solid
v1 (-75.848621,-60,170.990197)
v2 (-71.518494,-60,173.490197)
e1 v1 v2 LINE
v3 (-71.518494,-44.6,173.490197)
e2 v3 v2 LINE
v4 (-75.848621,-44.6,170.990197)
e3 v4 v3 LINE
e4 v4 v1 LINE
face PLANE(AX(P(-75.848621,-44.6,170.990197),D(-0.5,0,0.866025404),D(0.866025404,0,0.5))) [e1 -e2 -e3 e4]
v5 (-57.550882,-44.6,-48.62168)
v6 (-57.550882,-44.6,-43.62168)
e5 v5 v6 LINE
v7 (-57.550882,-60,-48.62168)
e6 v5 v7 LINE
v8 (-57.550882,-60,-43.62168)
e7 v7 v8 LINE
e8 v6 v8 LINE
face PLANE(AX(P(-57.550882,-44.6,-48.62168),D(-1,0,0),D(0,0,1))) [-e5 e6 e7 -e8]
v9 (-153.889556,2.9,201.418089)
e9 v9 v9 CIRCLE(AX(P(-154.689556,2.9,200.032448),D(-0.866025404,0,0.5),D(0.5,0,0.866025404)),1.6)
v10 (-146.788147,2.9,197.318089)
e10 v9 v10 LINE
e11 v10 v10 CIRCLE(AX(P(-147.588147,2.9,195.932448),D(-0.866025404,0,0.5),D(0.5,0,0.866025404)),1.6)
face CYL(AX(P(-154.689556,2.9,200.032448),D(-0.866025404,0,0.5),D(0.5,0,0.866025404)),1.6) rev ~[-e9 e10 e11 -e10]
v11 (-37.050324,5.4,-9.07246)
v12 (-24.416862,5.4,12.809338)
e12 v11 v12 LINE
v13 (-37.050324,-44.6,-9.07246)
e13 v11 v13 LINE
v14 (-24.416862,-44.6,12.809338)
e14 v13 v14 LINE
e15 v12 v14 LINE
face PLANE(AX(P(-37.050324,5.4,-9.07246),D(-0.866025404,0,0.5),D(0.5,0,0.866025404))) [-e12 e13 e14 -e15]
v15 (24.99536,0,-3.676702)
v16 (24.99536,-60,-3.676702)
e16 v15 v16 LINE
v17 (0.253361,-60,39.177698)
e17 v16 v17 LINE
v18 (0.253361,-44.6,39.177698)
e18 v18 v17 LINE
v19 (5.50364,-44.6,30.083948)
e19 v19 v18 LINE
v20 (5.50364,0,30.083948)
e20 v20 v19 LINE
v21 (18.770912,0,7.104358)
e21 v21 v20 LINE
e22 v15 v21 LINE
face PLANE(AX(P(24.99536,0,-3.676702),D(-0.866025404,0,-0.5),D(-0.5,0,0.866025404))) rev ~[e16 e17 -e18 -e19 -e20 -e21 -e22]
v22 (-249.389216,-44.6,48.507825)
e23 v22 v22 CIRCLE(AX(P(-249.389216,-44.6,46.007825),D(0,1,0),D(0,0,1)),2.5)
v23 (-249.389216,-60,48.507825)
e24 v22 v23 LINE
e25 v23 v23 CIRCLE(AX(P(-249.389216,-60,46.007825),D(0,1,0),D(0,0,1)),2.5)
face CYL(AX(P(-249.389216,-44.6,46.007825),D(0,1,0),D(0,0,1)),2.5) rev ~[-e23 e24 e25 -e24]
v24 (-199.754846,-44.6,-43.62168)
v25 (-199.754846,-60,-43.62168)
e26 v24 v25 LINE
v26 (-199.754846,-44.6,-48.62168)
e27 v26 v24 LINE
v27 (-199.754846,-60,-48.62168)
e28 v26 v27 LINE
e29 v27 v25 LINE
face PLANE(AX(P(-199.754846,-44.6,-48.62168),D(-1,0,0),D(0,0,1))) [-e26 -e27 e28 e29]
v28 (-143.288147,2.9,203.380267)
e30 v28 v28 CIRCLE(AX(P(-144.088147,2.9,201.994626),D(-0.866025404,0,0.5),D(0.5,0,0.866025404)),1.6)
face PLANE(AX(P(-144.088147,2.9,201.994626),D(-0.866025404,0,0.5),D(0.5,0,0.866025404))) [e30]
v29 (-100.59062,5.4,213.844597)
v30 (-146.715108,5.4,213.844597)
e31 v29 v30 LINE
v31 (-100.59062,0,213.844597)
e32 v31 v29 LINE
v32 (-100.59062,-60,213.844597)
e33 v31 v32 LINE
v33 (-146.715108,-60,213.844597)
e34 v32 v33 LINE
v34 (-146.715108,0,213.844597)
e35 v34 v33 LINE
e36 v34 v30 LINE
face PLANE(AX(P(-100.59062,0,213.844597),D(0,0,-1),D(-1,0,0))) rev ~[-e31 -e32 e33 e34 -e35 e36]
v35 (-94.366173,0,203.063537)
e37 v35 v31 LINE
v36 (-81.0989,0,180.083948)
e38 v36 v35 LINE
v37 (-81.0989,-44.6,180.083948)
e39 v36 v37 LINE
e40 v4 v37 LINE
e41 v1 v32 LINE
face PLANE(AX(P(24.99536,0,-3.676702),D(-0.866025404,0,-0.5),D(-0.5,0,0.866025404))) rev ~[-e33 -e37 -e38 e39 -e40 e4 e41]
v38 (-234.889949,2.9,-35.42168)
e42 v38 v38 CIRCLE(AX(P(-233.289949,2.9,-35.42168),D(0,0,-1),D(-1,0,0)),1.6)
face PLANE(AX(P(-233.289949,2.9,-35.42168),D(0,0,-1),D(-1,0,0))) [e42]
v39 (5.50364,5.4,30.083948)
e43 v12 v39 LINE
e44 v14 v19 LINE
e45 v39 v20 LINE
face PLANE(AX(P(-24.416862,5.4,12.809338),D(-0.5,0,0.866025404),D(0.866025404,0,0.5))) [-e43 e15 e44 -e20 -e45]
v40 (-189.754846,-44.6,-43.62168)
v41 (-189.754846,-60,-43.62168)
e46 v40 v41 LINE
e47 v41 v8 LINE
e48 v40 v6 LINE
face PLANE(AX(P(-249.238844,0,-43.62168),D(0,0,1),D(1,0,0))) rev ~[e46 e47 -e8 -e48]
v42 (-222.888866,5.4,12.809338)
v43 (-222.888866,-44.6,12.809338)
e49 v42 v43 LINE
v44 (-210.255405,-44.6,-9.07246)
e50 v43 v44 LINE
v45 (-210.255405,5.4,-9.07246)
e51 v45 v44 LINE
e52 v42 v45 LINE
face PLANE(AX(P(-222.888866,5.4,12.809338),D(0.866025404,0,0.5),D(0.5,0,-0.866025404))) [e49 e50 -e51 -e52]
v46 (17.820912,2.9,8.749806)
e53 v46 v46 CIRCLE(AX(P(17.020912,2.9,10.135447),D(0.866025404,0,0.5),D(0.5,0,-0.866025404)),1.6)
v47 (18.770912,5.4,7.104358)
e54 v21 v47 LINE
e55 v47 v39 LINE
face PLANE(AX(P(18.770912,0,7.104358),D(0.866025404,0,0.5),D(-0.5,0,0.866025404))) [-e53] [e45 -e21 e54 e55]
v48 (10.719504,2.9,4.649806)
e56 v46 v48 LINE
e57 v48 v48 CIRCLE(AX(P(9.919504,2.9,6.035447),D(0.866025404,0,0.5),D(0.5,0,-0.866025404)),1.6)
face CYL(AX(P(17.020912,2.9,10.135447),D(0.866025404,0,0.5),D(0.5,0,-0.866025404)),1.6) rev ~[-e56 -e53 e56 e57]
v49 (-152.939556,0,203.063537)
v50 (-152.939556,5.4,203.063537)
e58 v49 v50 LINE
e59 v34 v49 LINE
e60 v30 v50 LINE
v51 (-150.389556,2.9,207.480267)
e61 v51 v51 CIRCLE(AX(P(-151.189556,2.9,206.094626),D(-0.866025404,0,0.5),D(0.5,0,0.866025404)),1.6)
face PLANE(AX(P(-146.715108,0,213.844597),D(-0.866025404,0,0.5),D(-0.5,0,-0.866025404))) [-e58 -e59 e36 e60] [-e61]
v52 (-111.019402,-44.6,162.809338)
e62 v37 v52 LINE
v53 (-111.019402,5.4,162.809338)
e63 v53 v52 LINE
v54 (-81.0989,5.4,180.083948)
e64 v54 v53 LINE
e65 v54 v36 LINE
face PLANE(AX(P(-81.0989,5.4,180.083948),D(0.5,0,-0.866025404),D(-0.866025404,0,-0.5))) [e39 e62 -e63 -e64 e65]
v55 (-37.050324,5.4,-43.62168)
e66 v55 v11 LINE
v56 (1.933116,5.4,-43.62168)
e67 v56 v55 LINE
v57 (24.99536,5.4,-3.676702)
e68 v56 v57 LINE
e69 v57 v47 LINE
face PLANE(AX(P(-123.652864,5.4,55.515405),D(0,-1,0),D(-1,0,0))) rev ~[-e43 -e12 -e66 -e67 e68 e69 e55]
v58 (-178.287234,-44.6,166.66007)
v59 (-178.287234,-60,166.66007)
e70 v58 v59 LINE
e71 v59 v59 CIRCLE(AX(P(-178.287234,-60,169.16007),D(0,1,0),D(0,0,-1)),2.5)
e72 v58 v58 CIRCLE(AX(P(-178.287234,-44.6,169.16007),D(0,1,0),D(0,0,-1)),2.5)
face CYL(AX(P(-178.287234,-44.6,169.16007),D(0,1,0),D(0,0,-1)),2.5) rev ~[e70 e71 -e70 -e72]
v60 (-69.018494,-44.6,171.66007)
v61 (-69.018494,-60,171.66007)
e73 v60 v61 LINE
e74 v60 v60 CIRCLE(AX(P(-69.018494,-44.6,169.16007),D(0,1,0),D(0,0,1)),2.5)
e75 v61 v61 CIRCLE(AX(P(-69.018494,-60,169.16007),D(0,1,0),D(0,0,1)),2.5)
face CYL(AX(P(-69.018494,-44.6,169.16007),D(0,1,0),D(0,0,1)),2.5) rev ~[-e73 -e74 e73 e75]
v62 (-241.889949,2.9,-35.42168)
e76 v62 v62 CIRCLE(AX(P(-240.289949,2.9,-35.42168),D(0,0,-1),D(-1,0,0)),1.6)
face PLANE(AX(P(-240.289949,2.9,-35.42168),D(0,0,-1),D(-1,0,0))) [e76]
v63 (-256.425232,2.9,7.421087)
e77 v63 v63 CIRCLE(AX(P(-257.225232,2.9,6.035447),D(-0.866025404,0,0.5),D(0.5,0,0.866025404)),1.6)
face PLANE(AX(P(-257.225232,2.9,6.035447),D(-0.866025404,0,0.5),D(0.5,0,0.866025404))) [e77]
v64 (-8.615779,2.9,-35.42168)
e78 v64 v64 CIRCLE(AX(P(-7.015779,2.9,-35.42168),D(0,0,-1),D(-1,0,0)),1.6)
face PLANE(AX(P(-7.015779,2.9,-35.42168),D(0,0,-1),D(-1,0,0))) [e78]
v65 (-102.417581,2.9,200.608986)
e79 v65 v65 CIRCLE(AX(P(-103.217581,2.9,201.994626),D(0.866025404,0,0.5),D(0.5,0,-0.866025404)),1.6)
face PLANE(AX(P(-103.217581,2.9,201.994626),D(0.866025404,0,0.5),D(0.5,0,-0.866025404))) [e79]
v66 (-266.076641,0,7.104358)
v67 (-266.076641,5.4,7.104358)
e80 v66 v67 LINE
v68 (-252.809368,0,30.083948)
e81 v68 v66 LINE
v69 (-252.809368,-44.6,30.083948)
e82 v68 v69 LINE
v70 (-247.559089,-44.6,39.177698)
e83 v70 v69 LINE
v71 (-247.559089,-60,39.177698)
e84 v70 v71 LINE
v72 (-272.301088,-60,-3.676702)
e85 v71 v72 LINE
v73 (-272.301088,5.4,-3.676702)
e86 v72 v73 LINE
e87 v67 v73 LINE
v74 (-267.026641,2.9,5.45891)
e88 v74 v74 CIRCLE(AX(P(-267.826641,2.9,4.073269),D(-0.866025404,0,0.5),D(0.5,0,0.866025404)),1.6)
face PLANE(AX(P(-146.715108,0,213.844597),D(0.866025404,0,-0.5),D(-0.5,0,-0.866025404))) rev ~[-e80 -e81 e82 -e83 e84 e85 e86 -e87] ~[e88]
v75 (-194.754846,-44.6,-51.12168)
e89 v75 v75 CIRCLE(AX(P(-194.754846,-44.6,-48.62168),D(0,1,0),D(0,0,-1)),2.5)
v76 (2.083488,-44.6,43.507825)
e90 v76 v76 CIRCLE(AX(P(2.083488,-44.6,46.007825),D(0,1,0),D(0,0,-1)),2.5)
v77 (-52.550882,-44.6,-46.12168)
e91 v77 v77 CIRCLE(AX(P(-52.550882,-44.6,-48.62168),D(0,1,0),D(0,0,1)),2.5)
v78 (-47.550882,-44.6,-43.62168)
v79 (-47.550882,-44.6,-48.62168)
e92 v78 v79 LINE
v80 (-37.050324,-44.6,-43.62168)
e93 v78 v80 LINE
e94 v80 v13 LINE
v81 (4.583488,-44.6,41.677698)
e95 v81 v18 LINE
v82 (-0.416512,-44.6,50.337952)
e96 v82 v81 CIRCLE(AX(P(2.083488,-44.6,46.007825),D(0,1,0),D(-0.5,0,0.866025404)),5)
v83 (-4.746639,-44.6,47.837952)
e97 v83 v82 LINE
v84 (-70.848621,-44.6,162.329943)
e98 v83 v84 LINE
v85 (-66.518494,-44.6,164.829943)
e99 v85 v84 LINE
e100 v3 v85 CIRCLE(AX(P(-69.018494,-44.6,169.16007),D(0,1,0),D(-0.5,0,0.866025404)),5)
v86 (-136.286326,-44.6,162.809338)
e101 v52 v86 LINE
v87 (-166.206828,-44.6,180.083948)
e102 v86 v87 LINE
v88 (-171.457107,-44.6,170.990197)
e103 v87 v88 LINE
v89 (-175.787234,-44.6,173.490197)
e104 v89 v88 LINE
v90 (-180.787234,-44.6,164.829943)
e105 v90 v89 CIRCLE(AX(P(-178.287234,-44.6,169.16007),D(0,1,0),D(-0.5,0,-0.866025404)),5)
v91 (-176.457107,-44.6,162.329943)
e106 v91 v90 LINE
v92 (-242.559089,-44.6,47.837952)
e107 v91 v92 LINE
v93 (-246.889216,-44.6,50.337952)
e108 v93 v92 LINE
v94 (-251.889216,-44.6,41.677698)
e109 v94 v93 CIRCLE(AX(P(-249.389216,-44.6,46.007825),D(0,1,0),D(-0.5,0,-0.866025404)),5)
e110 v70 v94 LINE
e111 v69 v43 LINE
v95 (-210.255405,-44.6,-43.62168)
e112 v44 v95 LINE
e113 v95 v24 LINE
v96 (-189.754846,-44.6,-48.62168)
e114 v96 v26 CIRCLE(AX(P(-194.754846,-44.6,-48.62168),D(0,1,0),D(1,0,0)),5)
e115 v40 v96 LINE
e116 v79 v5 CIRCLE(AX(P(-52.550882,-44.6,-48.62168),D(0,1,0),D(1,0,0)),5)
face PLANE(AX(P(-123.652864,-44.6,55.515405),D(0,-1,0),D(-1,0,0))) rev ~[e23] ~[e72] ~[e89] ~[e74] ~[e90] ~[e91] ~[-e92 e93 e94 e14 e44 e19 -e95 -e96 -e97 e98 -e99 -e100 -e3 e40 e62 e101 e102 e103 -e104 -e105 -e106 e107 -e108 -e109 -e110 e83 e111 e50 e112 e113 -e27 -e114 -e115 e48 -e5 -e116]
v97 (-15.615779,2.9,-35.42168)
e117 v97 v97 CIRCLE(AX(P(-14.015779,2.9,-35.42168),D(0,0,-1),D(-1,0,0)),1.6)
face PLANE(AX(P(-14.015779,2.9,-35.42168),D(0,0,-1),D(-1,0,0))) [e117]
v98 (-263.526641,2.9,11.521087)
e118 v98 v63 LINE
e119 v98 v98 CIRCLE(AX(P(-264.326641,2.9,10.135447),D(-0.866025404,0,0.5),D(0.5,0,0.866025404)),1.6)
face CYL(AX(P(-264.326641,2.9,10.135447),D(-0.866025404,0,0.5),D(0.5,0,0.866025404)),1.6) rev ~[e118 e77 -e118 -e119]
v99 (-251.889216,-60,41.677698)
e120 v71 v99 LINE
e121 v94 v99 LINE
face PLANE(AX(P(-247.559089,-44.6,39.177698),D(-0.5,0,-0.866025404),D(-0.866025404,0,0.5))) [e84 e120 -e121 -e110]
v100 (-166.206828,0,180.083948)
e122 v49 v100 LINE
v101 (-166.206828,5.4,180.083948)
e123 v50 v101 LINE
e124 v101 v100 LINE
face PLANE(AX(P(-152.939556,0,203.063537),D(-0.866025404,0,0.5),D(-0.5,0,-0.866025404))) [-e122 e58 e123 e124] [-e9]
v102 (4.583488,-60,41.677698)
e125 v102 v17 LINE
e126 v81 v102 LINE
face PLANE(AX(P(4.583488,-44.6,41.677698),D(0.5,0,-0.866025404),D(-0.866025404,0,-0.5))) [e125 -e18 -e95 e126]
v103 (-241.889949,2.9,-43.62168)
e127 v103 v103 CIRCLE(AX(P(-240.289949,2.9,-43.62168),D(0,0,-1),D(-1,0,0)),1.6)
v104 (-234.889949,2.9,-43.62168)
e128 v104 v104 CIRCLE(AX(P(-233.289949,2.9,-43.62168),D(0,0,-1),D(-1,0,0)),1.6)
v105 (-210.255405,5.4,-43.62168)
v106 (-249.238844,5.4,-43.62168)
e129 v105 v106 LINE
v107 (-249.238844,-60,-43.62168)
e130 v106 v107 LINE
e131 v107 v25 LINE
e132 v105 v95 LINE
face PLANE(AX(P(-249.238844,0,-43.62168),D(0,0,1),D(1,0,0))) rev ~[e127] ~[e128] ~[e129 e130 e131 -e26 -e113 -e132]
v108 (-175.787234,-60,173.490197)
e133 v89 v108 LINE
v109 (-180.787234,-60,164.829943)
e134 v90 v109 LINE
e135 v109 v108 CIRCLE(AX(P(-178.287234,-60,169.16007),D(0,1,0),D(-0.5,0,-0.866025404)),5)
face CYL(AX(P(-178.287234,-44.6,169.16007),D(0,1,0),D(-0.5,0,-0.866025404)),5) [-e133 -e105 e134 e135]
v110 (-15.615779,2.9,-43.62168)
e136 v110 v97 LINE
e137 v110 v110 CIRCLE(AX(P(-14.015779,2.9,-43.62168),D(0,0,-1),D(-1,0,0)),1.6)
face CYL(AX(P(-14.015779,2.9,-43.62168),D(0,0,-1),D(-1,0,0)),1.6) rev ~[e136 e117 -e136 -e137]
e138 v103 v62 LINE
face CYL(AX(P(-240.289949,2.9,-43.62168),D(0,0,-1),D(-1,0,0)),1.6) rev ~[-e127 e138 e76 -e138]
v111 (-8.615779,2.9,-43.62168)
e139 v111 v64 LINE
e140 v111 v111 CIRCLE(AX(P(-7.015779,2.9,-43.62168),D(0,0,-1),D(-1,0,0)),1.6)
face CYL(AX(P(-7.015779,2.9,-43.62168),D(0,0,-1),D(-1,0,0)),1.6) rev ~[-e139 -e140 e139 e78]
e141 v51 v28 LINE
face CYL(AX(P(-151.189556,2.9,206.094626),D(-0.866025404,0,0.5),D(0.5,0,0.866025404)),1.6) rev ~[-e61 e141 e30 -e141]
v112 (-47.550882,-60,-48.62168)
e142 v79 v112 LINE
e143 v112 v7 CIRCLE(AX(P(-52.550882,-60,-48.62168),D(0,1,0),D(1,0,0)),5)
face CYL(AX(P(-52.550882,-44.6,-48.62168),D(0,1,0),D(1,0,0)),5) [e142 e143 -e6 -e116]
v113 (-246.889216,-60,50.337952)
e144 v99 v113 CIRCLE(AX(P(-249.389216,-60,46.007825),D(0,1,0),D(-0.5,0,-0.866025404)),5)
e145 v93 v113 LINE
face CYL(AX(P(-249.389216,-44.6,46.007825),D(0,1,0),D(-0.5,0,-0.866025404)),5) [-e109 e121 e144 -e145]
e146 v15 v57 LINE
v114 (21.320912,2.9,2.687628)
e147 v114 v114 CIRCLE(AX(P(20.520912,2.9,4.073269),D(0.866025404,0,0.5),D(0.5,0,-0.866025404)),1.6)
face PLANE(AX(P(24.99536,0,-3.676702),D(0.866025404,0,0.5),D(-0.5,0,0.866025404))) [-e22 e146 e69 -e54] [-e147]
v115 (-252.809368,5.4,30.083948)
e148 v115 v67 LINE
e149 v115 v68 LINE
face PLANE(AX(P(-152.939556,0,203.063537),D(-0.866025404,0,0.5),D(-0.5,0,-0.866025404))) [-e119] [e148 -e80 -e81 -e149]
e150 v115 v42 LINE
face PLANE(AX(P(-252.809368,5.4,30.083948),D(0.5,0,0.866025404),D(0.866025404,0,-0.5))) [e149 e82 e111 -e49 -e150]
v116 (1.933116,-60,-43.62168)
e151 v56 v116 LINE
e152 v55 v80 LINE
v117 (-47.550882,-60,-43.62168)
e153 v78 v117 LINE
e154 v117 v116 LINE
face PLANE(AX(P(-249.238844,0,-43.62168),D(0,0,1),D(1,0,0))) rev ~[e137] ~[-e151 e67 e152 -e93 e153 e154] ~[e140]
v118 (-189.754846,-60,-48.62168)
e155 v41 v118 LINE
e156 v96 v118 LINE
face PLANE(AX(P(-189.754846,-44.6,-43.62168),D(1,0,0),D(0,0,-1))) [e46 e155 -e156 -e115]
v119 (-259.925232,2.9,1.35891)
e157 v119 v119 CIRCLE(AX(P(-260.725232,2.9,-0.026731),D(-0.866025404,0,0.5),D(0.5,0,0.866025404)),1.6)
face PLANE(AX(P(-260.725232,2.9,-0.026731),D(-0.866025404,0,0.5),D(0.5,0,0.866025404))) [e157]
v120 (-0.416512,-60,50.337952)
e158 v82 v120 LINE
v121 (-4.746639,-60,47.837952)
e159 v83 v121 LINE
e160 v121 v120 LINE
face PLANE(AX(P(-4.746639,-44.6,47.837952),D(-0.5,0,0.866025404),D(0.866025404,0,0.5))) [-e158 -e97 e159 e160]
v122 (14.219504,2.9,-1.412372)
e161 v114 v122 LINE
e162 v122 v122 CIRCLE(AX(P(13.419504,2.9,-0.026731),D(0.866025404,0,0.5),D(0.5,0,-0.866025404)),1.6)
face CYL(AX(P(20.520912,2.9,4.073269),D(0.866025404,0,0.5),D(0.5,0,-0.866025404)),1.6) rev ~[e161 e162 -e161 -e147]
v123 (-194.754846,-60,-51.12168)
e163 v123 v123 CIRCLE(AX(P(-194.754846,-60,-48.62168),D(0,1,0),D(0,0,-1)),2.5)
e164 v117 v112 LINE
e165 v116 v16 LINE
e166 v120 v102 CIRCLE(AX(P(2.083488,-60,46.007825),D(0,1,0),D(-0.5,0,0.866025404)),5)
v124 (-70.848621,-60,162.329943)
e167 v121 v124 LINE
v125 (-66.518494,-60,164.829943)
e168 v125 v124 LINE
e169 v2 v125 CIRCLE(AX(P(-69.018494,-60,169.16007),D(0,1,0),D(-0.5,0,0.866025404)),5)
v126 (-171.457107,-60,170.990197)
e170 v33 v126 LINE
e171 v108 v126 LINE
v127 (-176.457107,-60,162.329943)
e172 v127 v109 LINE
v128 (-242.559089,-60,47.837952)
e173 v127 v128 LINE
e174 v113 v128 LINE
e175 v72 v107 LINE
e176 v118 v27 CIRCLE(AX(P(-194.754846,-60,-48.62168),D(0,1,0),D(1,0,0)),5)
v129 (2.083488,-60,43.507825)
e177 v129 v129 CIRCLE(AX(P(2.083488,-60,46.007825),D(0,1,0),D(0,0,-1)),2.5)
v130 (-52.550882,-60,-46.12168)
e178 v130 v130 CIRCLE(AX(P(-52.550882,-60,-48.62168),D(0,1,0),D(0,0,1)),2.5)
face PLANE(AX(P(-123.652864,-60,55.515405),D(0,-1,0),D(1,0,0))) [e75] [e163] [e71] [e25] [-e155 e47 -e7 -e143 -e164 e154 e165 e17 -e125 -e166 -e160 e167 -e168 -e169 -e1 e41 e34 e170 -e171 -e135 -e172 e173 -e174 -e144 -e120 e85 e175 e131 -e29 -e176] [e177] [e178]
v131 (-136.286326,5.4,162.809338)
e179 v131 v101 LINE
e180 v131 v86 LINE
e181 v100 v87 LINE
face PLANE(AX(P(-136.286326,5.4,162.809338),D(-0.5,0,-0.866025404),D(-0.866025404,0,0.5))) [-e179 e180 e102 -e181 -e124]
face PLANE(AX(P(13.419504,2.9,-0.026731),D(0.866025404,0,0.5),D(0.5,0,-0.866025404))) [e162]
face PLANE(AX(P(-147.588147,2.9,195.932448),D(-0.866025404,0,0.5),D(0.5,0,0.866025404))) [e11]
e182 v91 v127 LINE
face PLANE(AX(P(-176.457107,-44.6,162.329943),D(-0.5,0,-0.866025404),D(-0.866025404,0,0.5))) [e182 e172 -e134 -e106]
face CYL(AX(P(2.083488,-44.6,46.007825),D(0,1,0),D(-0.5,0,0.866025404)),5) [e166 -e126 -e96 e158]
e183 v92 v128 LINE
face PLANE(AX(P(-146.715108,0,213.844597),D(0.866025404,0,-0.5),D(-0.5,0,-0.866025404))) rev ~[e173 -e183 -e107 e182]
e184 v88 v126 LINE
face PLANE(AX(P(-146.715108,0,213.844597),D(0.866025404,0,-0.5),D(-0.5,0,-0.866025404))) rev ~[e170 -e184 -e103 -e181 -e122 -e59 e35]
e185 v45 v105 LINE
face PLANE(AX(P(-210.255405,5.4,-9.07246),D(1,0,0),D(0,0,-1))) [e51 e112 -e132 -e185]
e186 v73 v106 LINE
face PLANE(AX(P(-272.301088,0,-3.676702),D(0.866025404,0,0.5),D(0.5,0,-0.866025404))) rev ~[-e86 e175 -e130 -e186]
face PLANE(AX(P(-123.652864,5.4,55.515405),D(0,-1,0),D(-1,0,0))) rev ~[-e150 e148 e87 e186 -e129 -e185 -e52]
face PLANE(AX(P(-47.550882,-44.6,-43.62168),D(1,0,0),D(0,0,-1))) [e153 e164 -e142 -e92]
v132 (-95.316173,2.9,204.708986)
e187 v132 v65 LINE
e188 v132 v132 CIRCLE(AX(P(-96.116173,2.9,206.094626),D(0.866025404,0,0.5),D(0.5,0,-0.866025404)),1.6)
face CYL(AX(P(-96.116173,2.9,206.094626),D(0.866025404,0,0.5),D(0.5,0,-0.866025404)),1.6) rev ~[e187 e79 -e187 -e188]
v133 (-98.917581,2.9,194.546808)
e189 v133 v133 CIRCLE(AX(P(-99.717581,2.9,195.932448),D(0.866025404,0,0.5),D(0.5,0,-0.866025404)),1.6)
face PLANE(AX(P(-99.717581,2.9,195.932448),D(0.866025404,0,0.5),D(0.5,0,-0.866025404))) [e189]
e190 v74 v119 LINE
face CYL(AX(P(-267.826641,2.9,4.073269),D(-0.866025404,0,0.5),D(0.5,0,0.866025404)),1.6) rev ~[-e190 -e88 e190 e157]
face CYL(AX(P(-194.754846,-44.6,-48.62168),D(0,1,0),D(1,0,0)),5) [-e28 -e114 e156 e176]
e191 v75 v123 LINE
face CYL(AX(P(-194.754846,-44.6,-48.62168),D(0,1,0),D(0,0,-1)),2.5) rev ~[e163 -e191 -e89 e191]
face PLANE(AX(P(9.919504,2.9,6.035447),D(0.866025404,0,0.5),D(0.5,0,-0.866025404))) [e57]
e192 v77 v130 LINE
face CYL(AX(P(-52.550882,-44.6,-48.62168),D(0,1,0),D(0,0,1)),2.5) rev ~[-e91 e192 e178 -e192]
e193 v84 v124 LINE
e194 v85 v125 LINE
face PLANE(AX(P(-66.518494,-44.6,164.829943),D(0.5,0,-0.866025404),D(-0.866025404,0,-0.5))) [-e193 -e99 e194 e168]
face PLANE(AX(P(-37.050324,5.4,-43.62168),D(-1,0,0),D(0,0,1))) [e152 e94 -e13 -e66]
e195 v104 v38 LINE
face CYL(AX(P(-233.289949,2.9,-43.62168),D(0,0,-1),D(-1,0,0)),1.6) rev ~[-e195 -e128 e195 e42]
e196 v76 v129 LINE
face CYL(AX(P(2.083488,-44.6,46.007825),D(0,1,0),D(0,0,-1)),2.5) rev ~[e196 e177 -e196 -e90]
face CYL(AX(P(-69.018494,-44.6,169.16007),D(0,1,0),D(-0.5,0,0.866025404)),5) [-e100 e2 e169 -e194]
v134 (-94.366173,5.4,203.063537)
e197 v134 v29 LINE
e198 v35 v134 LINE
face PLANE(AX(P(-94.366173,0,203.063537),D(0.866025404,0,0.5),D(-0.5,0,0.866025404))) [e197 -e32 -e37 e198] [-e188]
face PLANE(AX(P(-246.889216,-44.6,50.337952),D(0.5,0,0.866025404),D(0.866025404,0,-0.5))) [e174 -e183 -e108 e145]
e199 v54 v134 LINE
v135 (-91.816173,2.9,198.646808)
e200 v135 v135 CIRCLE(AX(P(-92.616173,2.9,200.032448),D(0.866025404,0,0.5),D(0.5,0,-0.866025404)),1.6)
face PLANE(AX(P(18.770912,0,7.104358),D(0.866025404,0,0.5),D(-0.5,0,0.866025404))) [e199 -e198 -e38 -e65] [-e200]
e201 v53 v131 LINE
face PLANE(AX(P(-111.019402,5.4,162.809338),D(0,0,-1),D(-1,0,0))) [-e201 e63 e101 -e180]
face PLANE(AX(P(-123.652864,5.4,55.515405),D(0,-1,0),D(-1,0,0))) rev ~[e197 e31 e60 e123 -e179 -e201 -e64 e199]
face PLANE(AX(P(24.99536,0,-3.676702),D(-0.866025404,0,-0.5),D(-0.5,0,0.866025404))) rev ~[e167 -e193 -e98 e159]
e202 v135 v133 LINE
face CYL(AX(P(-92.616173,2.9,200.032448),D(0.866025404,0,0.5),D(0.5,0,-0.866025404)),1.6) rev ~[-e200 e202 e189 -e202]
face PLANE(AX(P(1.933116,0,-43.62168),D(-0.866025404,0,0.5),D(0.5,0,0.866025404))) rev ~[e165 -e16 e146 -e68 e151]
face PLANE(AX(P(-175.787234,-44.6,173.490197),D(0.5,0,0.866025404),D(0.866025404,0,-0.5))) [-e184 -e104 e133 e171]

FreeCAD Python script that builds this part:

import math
import FreeCAD as App
import Part
import Sketcher

V = App.Vector
Q = App.Units.Quantity


def add_polygon(sketch, points):
    """Adds a closed chain of lines whose ends are joined by coincident constraints."""
    first, n = sketch.GeometryCount, len(points)
    for a, b in zip(points, points[1:] + points[:1]):
        sketch.addGeometry(Part.LineSegment(App.Vector(*a, 0), App.Vector(*b, 0)), False)
    for i in range(n):
        sketch.addConstraint(Sketcher.Constraint("Coincident", first + i, 2, first + (i + 1) % n, 1))

doc = App.newDocument("Part")
body = doc.addObject("PartDesign::Body", "Body")

sketch1 = doc.addObject("Sketcher::SketchObject", "Sketch")
body.addObject(sketch1)
sketch1.AttachmentSupport = (doc.XZ_Plane, [""])
sketch1.MapMode = "FlatFace"
add_polygon(sketch1, [(-272, -4), (-266, 7), (-153, 203), (-147, 214), (-101, 214), (-94, 203), (19, 7), (25, -4), (2, -44), (-249, -44)])
sketch1.addConstraint(Sketcher.Constraint("Horizontal", 3))
sketch1.addConstraint(Sketcher.Constraint("Horizontal", 8))
sketch1.addConstraint(Sketcher.Constraint("Parallel", 0, 1))
sketch1.addConstraint(Sketcher.Constraint("Parallel", 1, 2))
sketch1.addConstraint(Sketcher.Constraint("Parallel", 4, 5))
sketch1.addConstraint(Sketcher.Constraint("Parallel", 5, 6))
sketch1.addConstraint(Sketcher.Constraint("Parallel", 2, 7))
sketch1.addConstraint(Sketcher.Constraint("Parallel", 6, 9))
sketch1.addConstraint(Sketcher.Constraint("Horizontal", 1, 2, 4, 2))
sketch1.addConstraint(Sketcher.Constraint("Horizontal", 0, 2, 5, 2))
sketch1.addConstraint(Sketcher.Constraint("Horizontal", 6, 2, 9, 2))
sketch1.addConstraint(Sketcher.Constraint("Equal", 0, 2))
sketch1.addConstraint(Sketcher.Constraint("Equal", 2, 4))
sketch1.addConstraint(Sketcher.Constraint("Angle", 0, Q("60 deg")))
sketch1.addConstraint(Sketcher.Constraint("DistanceX", 3, 1, 3, 2, Q("46.124488 mm")))
sketch1.addConstraint(Sketcher.Constraint("DistanceX", 8, 2, 8, 1, Q("251.17196 mm")))
sketch1.addConstraint(Sketcher.Constraint("DistanceY", 6, 2, -1, 1, Q("3.676702 mm")))
sketch1.addConstraint(Sketcher.Constraint("DistanceY", 6, 2, 3, 2, Q("217.521298 mm")))
sketch1.addConstraint(Sketcher.Constraint("Distance", 1, Q("226.27417 mm")))
sketch1.addConstraint(Sketcher.Constraint("DistanceX", 0, 2, -1, 1, Q("266.076641 mm")))
pad1 = doc.addObject("PartDesign::Pad", "Pad")
body.addObject(pad1)
pad1.Profile = sketch1
pad1.Length = 5.4
pad1.Reversed = True

sketch2 = doc.addObject("Sketcher::SketchObject", "Sketch001")
body.addObject(sketch2)
sketch2.AttachmentSupport = (doc.XZ_Plane, [""])
sketch2.MapMode = "FlatFace"
add_polygon(sketch2, [(-272, -4), (-249, -44), (2, -44), (25, -4), (-101, 214), (-147, 214)])
sketch2.addConstraint(Sketcher.Constraint("Horizontal", 1))
sketch2.addConstraint(Sketcher.Constraint("Horizontal", 4))
sketch2.addConstraint(Sketcher.Constraint("Parallel", 0, 3))
sketch2.addConstraint(Sketcher.Constraint("Parallel", 2, 5))
sketch2.addConstraint(Sketcher.Constraint("Horizontal", 2, 2, 5, 2))
sketch2.addConstraint(Sketcher.Constraint("Equal", 0, 2))
sketch2.addConstraint(Sketcher.Constraint("Angle", 0, Q("-60 deg")))
sketch2.addConstraint(Sketcher.Constraint("DistanceX", 1, 1, 1, 2, Q("251.17196 mm")))
sketch2.addConstraint(Sketcher.Constraint("DistanceX", 4, 2, 4, 1, Q("46.124488 mm")))
sketch2.addConstraint(Sketcher.Constraint("DistanceY", 2, 2, -1, 1, Q("3.676702 mm")))
sketch2.addConstraint(Sketcher.Constraint("DistanceY", 2, 2, 3, 2, Q("217.521298 mm")))
sketch2.addConstraint(Sketcher.Constraint("DistanceX", -1, 1, 2, 2, Q("24.99536 mm")))
pad2 = doc.addObject("PartDesign::Pad", "Pad001")
body.addObject(pad2)
pad2.Profile = sketch2
pad2.Length = 60

sketch3 = doc.addObject("Sketcher::SketchObject", "Sketch002")
body.addObject(sketch3)
sketch3.Placement = App.Placement(V(-202.633758, 0, 116.990655), App.Rotation(V(0.5, 0, 0.866025404), V(0, 1, 0), V(-0.866025404, 0, 0.5), "ZXY"))
sketch3.addGeometry(Part.Circle(V(95.9, 2.9, 0), V(0, 0, 1), 1.6), False)
sketch3.addGeometry(Part.Circle(V(102.9, 2.9, 0), V(0, 0, 1), 1.6), False)
sketch3.addConstraint(Sketcher.Constraint("Equal", 0, 1))
sketch3.addConstraint(Sketcher.Constraint("Horizontal", 0, 3, 1, 3))
sketch3.addConstraint(Sketcher.Constraint("Diameter", 0, Q("3.2 mm")))
sketch3.addConstraint(Sketcher.Constraint("DistanceX", 0, 3, 1, 3, Q("7 mm")))
sketch3.addConstraint(Sketcher.Constraint("DistanceY", -1, 1, 0, 3, Q("2.9 mm")))
sketch3.addConstraint(Sketcher.Constraint("DistanceX", -1, 1, 0, 3, Q("95.888404 mm")))
pocket1 = doc.addObject("PartDesign::Pocket", "Pocket")
body.addObject(pocket1)
pocket1.Profile = sketch3
pocket1.Length = 8.2

sketch4 = doc.addObject("Sketcher::SketchObject", "Sketch003")
body.addObject(sketch4)
sketch4.Placement = App.Placement(V(-202.633758, 0, 116.990655), App.Rotation(V(0.5, 0, 0.866025404), V(0, 1, 0), V(-0.866025404, 0, 0.5), "ZXY"))
sketch4.addGeometry(Part.Circle(V(-130.4, 2.9, 0), V(0, 0, 1), 1.6), False)
sketch4.addGeometry(Part.Circle(V(-123.4, 2.9, 0), V(0, 0, 1), 1.6), False)
sketch4.addConstraint(Sketcher.Constraint("Equal", 0, 1))
sketch4.addConstraint(Sketcher.Constraint("Horizontal", 0, 3, 1, 3))
sketch4.addConstraint(Sketcher.Constraint("Diameter", 0, Q("3.2 mm")))
sketch4.addConstraint(Sketcher.Constraint("DistanceX", 0, 3, 1, 3, Q("7 mm")))
sketch4.addConstraint(Sketcher.Constraint("DistanceY", -1, 1, 0, 3, Q("2.9 mm")))
sketch4.addConstraint(Sketcher.Constraint("DistanceX", 0, 3, -1, 1, Q("130.385766 mm")))
pocket2 = doc.addObject("PartDesign::Pocket", "Pocket001")
body.addObject(pocket2)
pocket2.Profile = sketch4
pocket2.Length = 8.2

sketch5 = doc.addObject("Sketcher::SketchObject", "Sketch004")
body.addObject(sketch5)
sketch5.AttachmentSupport = (doc.XY_Plane, [""])
sketch5.MapMode = "FlatFace"
sketch5.AttachmentOffset = App.Placement(V(0, 0, -43.62168), App.Rotation())
sketch5.addGeometry(Part.Circle(V(-233.3, 2.9, 0), V(0, 0, 1), 1.6), False)
sketch5.addGeometry(Part.Circle(V(-240.3, 2.9, 0), V(0, 0, 1), 1.6), False)
sketch5.addGeometry(Part.Circle(V(-7, 2.9, 0), V(0, 0, 1), 1.6), False)
sketch5.addGeometry(Part.Circle(V(-14, 2.9, 0), V(0, 0, 1), 1.6), False)
sketch5.addConstraint(Sketcher.Constraint("Equal", 0, 1))
sketch5.addConstraint(Sketcher.Constraint("Equal", 1, 2))
sketch5.addConstraint(Sketcher.Constraint("Equal", 2, 3))
sketch5.addConstraint(Sketcher.Constraint("Horizontal", 0, 3, 1, 3))
sketch5.addConstraint(Sketcher.Constraint("Horizontal", 1, 3, 2, 3))
sketch5.addConstraint(Sketcher.Constraint("Horizontal", 2, 3, 3, 3))
sketch5.addConstraint(Sketcher.Constraint("Diameter", 0, Q("3.2 mm")))
sketch5.addConstraint(Sketcher.Constraint("DistanceX", 1, 3, 0, 3, Q("7 mm")))
sketch5.addConstraint(Sketcher.Constraint("DistanceX", 3, 3, 2, 3, Q("7 mm")))
sketch5.addConstraint(Sketcher.Constraint("DistanceY", -1, 1, 0, 3, Q("2.9 mm")))
sketch5.addConstraint(Sketcher.Constraint("DistanceX", 0, 3, -1, 1, Q("233.289949 mm")))
sketch5.addConstraint(Sketcher.Constraint("DistanceX", 2, 3, -1, 1, Q("7.015779 mm")))
pocket3 = doc.addObject("PartDesign::Pocket", "Pocket002")
body.addObject(pocket3)
pocket3.Profile = sketch5
pocket3.Length = 8.2
pocket3.Reversed = True

sketch6 = doc.addObject("Sketcher::SketchObject", "Sketch005")
body.addObject(sketch6)
sketch6.Placement = App.Placement(V(17.154461, 0, 9.904133), App.Rotation(V(0.5, 0, -0.866025404), V(0, 1, 0), V(0.866025404, 0, 0.5), "ZXY"))
sketch6.addGeometry(Part.Circle(V(-0.3, 2.9, 0), V(0, 0, 1), 1.6), False)
sketch6.addGeometry(Part.Circle(V(6.7, 2.9, 0), V(0, 0, 1), 1.6), False)
sketch6.addGeometry(Part.Circle(V(-226.5, 2.9, 0), V(0, 0, 1), 1.6), False)
sketch6.addGeometry(Part.Circle(V(-219.5, 2.9, 0), V(0, 0, 1), 1.6), False)
sketch6.addConstraint(Sketcher.Constraint("Equal", 0, 1))
sketch6.addConstraint(Sketcher.Constraint("Equal", 1, 2))
sketch6.addConstraint(Sketcher.Constraint("Equal", 2, 3))
sketch6.addConstraint(Sketcher.Constraint("Horizontal", 0, 3, 1, 3))
sketch6.addConstraint(Sketcher.Constraint("Horizontal", 1, 3, 2, 3))
sketch6.addConstraint(Sketcher.Constraint("Horizontal", 2, 3, 3, 3))
sketch6.addConstraint(Sketcher.Constraint("Diameter", 0, Q("3.2 mm")))
sketch6.addConstraint(Sketcher.Constraint("DistanceX", 0, 3, 1, 3, Q("7 mm")))
sketch6.addConstraint(Sketcher.Constraint("DistanceX", 2, 3, 3, 3, Q("7 mm")))
sketch6.addConstraint(Sketcher.Constraint("DistanceY", -1, 1, 0, 3, Q("2.9 mm")))
sketch6.addConstraint(Sketcher.Constraint("DistanceX", 0, 3, -1, 1, Q("0.267098 mm")))
sketch6.addConstraint(Sketcher.Constraint("DistanceX", 2, 3, -1, 1, Q("226.541268 mm")))
pocket4 = doc.addObject("PartDesign::Pocket", "Pocket003")
body.addObject(pocket4)
pocket4.Profile = sketch6
pocket4.Length = 8.2

sketch7 = doc.addObject("Sketcher::SketchObject", "Sketch006")
body.addObject(sketch7)
sketch7.AttachmentSupport = (doc.XZ_Plane, [""])
sketch7.MapMode = "FlatFace"
sketch7.AttachmentOffset = App.Placement(V(0, 0, -5.4), App.Rotation())
add_polygon(sketch7, [(-223, 13), (-253, 30), (-166, 180), (-136, 163), (-111, 163), (-81, 180), (6, 30), (-24, 13), (-37, -9), (-37, -44), (-210, -44), (-210, -9)])
sketch7.addConstraint(Sketcher.Constraint("Horizontal", 3))
sketch7.addConstraint(Sketcher.Constraint("Vertical", 8))
sketch7.addConstraint(Sketcher.Constraint("Horizontal", 9))
sketch7.addConstraint(Sketcher.Constraint("Vertical", 10))
sketch7.addConstraint(Sketcher.Constraint("Perpendicular", 0, 1))
sketch7.addConstraint(Sketcher.Constraint("Perpendicular", 1, 2))
sketch7.addConstraint(Sketcher.Constraint("Perpendicular", 4, 5))
sketch7.addConstraint(Sketcher.Constraint("Perpendicular", 5, 6))
sketch7.addConstraint(Sketcher.Constraint("Perpendicular", 2, 7))
sketch7.addConstraint(Sketcher.Constraint("Perpendicular", 6, 11))
sketch7.addConstraint(Sketcher.Constraint("Horizontal", 1, 2, 4, 2))
sketch7.addConstraint(Sketcher.Constraint("Horizontal", 0, 2, 5, 2))
sketch7.addConstraint(Sketcher.Constraint("Horizontal", 7, 2, 10, 2))
sketch7.addConstraint(Sketcher.Constraint("Horizontal", 6, 2, 11, 2))
sketch7.addConstraint(Sketcher.Constraint("Equal", 0, 2))
sketch7.addConstraint(Sketcher.Constraint("Equal", 2, 4))
sketch7.addConstraint(Sketcher.Constraint("Angle", 0, Q("150 deg")))
sketch7.addConstraint(Sketcher.Constraint("DistanceY", 0, 2, 1, 2, Q("150 mm")))
sketch7.addConstraint(Sketcher.Constraint("DistanceX", 9, 2, 9, 1, Q("173.205081 mm")))
sketch7.addConstraint(Sketcher.Constraint("DistanceY", 8, 2, 8, 1, Q("34.54922 mm")))
sketch7.addConstraint(Sketcher.Constraint("DistanceX", 4, 2, -1, 1, Q("81.0989 mm")))
sketch7.addConstraint(Sketcher.Constraint("DistanceX", 1, 2, 2, 2, Q("29.920502 mm")))
sketch7.addConstraint(Sketcher.Constraint("DistanceX", 3, 1, 3, 2, Q("25.266924 mm")))
sketch7.addConstraint(Sketcher.Constraint("DistanceY", 7, 2, -1, 1, Q("9.07246 mm")))
pocket5 = doc.addObject("PartDesign::Pocket", "Pocket004")
body.addObject(pocket5)
pocket5.Profile = sketch7
pocket5.Length = 50
pocket5.Reversed = True

sketch8 = doc.addObject("Sketcher::SketchObject", "Sketch007")
body.addObject(sketch8)
sketch8.AttachmentSupport = (doc.XZ_Plane, [""])
sketch8.MapMode = "FlatFace"
sketch8.AttachmentOffset = App.Placement(V(0, 0, 44.6), App.Rotation())
sketch8.addGeometry(Part.LineSegment(V(-57.6, -43.6, 0), V(-47.6, -43.6, 0)), False)
sketch8.addGeometry(Part.LineSegment(V(-47.6, -43.6, 0), V(-47.6, -48.6, 0)), False)
sketch8.addGeometry(Part.ArcOfCircle(Part.Circle(V(-52.6, -48.6, 0), V(0, 0, 1), 5), math.radians(180), math.radians(360)), False)
sketch8.addGeometry(Part.LineSegment(V(-57.6, -48.6, 0), V(-57.6, -43.6, 0)), False)
sketch8.addGeometry(Part.Circle(V(-52.6, -48.6, 0), V(0, 0, 1), 2.5), False)
sketch8.addGeometry(Part.LineSegment(V(-189.8, -43.6, 0), V(-189.8, -48.6, 0)), False)
sketch8.addGeometry(Part.ArcOfCircle(Part.Circle(V(-194.8, -48.6, 0), V(0, 0, 1), 5), math.radians(180), math.radians(360)), False)
sketch8.addGeometry(Part.LineSegment(V(-199.8, -48.6, 0), V(-199.8, -43.6, 0)), False)
sketch8.addGeometry(Part.LineSegment(V(-199.8, -43.6, 0), V(-189.8, -43.6, 0)), False)
sketch8.addGeometry(Part.Circle(V(-194.8, -48.6, 0), V(0, 0, 1), 2.5), False)
sketch8.addGeometry(Part.LineSegment(V(-242.6, 47.8, 0), V(-247.6, 39.2, 0)), False)
sketch8.addGeometry(Part.LineSegment(V(-247.6, 39.2, 0), V(-251.9, 41.7, 0)), False)
sketch8.addGeometry(Part.ArcOfCircle(Part.Circle(V(-249.4, 46, 0), V(0, 0, 1), 5), math.radians(60), math.radians(240)), False)
sketch8.addGeometry(Part.LineSegment(V(-246.9, 50.3, 0), V(-242.6, 47.8, 0)), False)
sketch8.addGeometry(Part.Circle(V(-249.4, 46, 0), V(0, 0, 1), 2.5), False)
sketch8.addGeometry(Part.LineSegment(V(-176.5, 162.3, 0), V(-180.8, 164.8, 0)), False)
sketch8.addGeometry(Part.ArcOfCircle(Part.Circle(V(-178.3, 169.2, 0), V(0, 0, 1), 5), math.radians(60), math.radians(240)), False)
sketch8.addGeometry(Part.LineSegment(V(-175.8, 173.5, 0), V(-171.5, 171, 0)), False)
sketch8.addGeometry(Part.LineSegment(V(-171.5, 171, 0), V(-176.5, 162.3, 0)), False)
sketch8.addGeometry(Part.Circle(V(-178.3, 169.2, 0), V(0, 0, 1), 2.5), False)
sketch8.addGeometry(Part.LineSegment(V(-70.8, 162.3, 0), V(-75.8, 171, 0)), False)
sketch8.addGeometry(Part.LineSegment(V(-75.8, 171, 0), V(-71.5, 173.5, 0)), False)
sketch8.addGeometry(Part.ArcOfCircle(Part.Circle(V(-69, 169.2, 0), V(0, 0, 1), 5), math.radians(-60), math.radians(120)), False)
sketch8.addGeometry(Part.LineSegment(V(-66.5, 164.8, 0), V(-70.8, 162.3, 0)), False)
sketch8.addGeometry(Part.Circle(V(-69, 169.2, 0), V(0, 0, 1), 2.5), False)
sketch8.addGeometry(Part.LineSegment(V(-4.7, 47.8, 0), V(-0.4, 50.3, 0)), False)
sketch8.addGeometry(Part.ArcOfCircle(Part.Circle(V(2.1, 46, 0), V(0, 0, 1), 5), math.radians(-60), math.radians(120)), False)
sketch8.addGeometry(Part.LineSegment(V(4.6, 41.7, 0), V(0.3, 39.2, 0)), False)
sketch8.addGeometry(Part.LineSegment(V(0.3, 39.2, 0), V(-4.7, 47.8, 0)), False)
sketch8.addGeometry(Part.Circle(V(2.1, 46, 0), V(0, 0, 1), 2.5), False)
sketch8.addConstraint(Sketcher.Constraint("Coincident", 0, 2, 1, 1))
sketch8.addConstraint(Sketcher.Constraint("Tangent", 1, 2, 2, 2))
sketch8.addConstraint(Sketcher.Constraint("Tangent", 2, 1, 3, 1))
sketch8.addConstraint(Sketcher.Constraint("Coincident", 3, 2, 0, 1))
sketch8.addConstraint(Sketcher.Constraint("Tangent", 5, 2, 6, 2))
sketch8.addConstraint(Sketcher.Constraint("Tangent", 6, 1, 7, 1))
sketch8.addConstraint(Sketcher.Constraint("Coincident", 7, 2, 8, 1))
sketch8.addConstraint(Sketcher.Constraint("Coincident", 8, 2, 5, 1))
sketch8.addConstraint(Sketcher.Constraint("Coincident", 10, 2, 11, 1))
sketch8.addConstraint(Sketcher.Constraint("Tangent", 11, 2, 12, 2))
sketch8.addConstraint(Sketcher.Constraint("Tangent", 12, 1, 13, 1))
sketch8.addConstraint(Sketcher.Constraint("Coincident", 13, 2, 10, 1))
sketch8.addConstraint(Sketcher.Constraint("Tangent", 15, 2, 16, 2))
sketch8.addConstraint(Sketcher.Constraint("Tangent", 16, 1, 17, 1))
sketch8.addConstraint(Sketcher.Constraint("Coincident", 17, 2, 18, 1))
sketch8.addConstraint(Sketcher.Constraint("Coincident", 18, 2, 15, 1))
sketch8.addConstraint(Sketcher.Constraint("Coincident", 20, 2, 21, 1))
sketch8.addConstraint(Sketcher.Constraint("Tangent", 21, 2, 22, 2))
sketch8.addConstraint(Sketcher.Constraint("Tangent", 22, 1, 23, 1))
sketch8.addConstraint(Sketcher.Constraint("Coincident", 23, 2, 20, 1))
sketch8.addConstraint(Sketcher.Constraint("Tangent", 25, 2, 26, 2))
sketch8.addConstraint(Sketcher.Constraint("Tangent", 26, 1, 27, 1))
sketch8.addConstraint(Sketcher.Constraint("Coincident", 27, 2, 28, 1))
sketch8.addConstraint(Sketcher.Constraint("Coincident", 28, 2, 25, 1))
sketch8.addConstraint(Sketcher.Constraint("Horizontal", 0))
sketch8.addConstraint(Sketcher.Constraint("Vertical", 1))
sketch8.addConstraint(Sketcher.Constraint("Vertical", 3))
sketch8.addConstraint(Sketcher.Constraint("Vertical", 5))
sketch8.addConstraint(Sketcher.Constraint("Vertical", 7))
sketch8.addConstraint(Sketcher.Constraint("Horizontal", 8))
sketch8.addConstraint(Sketcher.Constraint("Coincident", 4, 3, 2, 3))
sketch8.addConstraint(Sketcher.Constraint("Coincident", 9, 3, 6, 3))
sketch8.addConstraint(Sketcher.Constraint("Coincident", 14, 3, 12, 3))
sketch8.addConstraint(Sketcher.Constraint("Coincident", 19, 3, 16, 3))
sketch8.addConstraint(Sketcher.Constraint("Coincident", 24, 3, 22, 3))
sketch8.addConstraint(Sketcher.Constraint("Coincident", 29, 3, 26, 3))
sketch8.addConstraint(Sketcher.Constraint("Equal", 2, 6))
sketch8.addConstraint(Sketcher.Constraint("Equal", 4, 9))
sketch8.addConstraint(Sketcher.Constraint("Equal", 6, 12))
sketch8.addConstraint(Sketcher.Constraint("Equal", 9, 14))
sketch8.addConstraint(Sketcher.Constraint("Equal", 12, 16))
sketch8.addConstraint(Sketcher.Constraint("Equal", 14, 19))
sketch8.addConstraint(Sketcher.Constraint("Equal", 16, 22))
sketch8.addConstraint(Sketcher.Constraint("Equal", 19, 24))
sketch8.addConstraint(Sketcher.Constraint("Equal", 22, 26))
sketch8.addConstraint(Sketcher.Constraint("Equal", 24, 29))
sketch8.addConstraint(Sketcher.Constraint("Perpendicular", 10, 11))
sketch8.addConstraint(Sketcher.Constraint("Parallel", 11, 13))
sketch8.addConstraint(Sketcher.Constraint("Parallel", 13, 15))
sketch8.addConstraint(Sketcher.Constraint("Parallel", 15, 17))
sketch8.addConstraint(Sketcher.Constraint("Perpendicular", 17, 18))
sketch8.addConstraint(Sketcher.Constraint("Perpendicular", 20, 21))
sketch8.addConstraint(Sketcher.Constraint("Parallel", 21, 23))
sketch8.addConstraint(Sketcher.Constraint("Parallel", 23, 25))
sketch8.addConstraint(Sketcher.Constraint("Parallel", 25, 27))
sketch8.addConstraint(Sketcher.Constraint("Perpendicular", 27, 28))
sketch8.addConstraint(Sketcher.Constraint("Horizontal", 4, 3, 6, 3))
sketch8.addConstraint(Sketcher.Constraint("Horizontal", 19, 3, 22, 3))
sketch8.addConstraint(Sketcher.Constraint("Horizontal", 14, 3, 26, 3))
sketch8.addConstraint(Sketcher.Constraint("Horizontal", 3, 2, 7, 2))
sketch8.addConstraint(Sketcher.Constraint("Horizontal", 17, 2, 20, 2))
sketch8.addConstraint(Sketcher.Constraint("Horizontal", 16, 1, 21, 2))
sketch8.addConstraint(Sketcher.Constraint("Horizontal", 10, 2, 27, 2))
sketch8.addConstraint(Sketcher.Constraint("Equal", 13, 15))
sketch8.addConstraint(Sketcher.Constraint("Diameter", 4, Q("5 mm")))
sketch8.addConstraint(Sketcher.Constraint("Radius", 2, Q("5 mm")))
sketch8.addConstraint(Sketcher.Constraint("DistanceY", 1, 2, 1, 1, Q("5 mm")))
sketch8.addConstraint(Sketcher.Constraint("Angle", 10, Q("-120 deg")))
sketch8.addConstraint(Sketcher.Constraint("Distance", 11, Q("5 mm")))
sketch8.addConstraint(Sketcher.Constraint("DistanceY", 2, 3, -1, 1, Q("48.62168 mm")))
sketch8.addConstraint(Sketcher.Constraint("DistanceY", -1, 1, 16, 3, Q("169.16007 mm")))
sketch8.addConstraint(Sketcher.Constraint("DistanceX", 10, 2, -1, 1, Q("247.559089 mm")))
sketch8.addConstraint(Sketcher.Constraint("DistanceY", -1, 1, 12, 1, Q("50.337952 mm")))
sketch8.addConstraint(Sketcher.Constraint("DistanceX", 20, 2, -1, 1, Q("75.848621 mm")))
sketch8.addConstraint(Sketcher.Constraint("DistanceX", -1, 1, 27, 2, Q("0.253361 mm")))
sketch8.addConstraint(Sketcher.Constraint("DistanceX", 12, 3, 6, 3, Q("54.63437 mm")))
sketch8.addConstraint(Sketcher.Constraint("DistanceX", 16, 3, 22, 3, Q("109.26874 mm")))
sketch8.addConstraint(Sketcher.Constraint("DistanceX", 2, 3, 26, 3, Q("54.63437 mm")))
pad3 = doc.addObject("PartDesign::Pad", "Pad002")
body.addObject(pad3)
pad3.Profile = sketch8
pad3.Length = 15.4

doc.recompute()
